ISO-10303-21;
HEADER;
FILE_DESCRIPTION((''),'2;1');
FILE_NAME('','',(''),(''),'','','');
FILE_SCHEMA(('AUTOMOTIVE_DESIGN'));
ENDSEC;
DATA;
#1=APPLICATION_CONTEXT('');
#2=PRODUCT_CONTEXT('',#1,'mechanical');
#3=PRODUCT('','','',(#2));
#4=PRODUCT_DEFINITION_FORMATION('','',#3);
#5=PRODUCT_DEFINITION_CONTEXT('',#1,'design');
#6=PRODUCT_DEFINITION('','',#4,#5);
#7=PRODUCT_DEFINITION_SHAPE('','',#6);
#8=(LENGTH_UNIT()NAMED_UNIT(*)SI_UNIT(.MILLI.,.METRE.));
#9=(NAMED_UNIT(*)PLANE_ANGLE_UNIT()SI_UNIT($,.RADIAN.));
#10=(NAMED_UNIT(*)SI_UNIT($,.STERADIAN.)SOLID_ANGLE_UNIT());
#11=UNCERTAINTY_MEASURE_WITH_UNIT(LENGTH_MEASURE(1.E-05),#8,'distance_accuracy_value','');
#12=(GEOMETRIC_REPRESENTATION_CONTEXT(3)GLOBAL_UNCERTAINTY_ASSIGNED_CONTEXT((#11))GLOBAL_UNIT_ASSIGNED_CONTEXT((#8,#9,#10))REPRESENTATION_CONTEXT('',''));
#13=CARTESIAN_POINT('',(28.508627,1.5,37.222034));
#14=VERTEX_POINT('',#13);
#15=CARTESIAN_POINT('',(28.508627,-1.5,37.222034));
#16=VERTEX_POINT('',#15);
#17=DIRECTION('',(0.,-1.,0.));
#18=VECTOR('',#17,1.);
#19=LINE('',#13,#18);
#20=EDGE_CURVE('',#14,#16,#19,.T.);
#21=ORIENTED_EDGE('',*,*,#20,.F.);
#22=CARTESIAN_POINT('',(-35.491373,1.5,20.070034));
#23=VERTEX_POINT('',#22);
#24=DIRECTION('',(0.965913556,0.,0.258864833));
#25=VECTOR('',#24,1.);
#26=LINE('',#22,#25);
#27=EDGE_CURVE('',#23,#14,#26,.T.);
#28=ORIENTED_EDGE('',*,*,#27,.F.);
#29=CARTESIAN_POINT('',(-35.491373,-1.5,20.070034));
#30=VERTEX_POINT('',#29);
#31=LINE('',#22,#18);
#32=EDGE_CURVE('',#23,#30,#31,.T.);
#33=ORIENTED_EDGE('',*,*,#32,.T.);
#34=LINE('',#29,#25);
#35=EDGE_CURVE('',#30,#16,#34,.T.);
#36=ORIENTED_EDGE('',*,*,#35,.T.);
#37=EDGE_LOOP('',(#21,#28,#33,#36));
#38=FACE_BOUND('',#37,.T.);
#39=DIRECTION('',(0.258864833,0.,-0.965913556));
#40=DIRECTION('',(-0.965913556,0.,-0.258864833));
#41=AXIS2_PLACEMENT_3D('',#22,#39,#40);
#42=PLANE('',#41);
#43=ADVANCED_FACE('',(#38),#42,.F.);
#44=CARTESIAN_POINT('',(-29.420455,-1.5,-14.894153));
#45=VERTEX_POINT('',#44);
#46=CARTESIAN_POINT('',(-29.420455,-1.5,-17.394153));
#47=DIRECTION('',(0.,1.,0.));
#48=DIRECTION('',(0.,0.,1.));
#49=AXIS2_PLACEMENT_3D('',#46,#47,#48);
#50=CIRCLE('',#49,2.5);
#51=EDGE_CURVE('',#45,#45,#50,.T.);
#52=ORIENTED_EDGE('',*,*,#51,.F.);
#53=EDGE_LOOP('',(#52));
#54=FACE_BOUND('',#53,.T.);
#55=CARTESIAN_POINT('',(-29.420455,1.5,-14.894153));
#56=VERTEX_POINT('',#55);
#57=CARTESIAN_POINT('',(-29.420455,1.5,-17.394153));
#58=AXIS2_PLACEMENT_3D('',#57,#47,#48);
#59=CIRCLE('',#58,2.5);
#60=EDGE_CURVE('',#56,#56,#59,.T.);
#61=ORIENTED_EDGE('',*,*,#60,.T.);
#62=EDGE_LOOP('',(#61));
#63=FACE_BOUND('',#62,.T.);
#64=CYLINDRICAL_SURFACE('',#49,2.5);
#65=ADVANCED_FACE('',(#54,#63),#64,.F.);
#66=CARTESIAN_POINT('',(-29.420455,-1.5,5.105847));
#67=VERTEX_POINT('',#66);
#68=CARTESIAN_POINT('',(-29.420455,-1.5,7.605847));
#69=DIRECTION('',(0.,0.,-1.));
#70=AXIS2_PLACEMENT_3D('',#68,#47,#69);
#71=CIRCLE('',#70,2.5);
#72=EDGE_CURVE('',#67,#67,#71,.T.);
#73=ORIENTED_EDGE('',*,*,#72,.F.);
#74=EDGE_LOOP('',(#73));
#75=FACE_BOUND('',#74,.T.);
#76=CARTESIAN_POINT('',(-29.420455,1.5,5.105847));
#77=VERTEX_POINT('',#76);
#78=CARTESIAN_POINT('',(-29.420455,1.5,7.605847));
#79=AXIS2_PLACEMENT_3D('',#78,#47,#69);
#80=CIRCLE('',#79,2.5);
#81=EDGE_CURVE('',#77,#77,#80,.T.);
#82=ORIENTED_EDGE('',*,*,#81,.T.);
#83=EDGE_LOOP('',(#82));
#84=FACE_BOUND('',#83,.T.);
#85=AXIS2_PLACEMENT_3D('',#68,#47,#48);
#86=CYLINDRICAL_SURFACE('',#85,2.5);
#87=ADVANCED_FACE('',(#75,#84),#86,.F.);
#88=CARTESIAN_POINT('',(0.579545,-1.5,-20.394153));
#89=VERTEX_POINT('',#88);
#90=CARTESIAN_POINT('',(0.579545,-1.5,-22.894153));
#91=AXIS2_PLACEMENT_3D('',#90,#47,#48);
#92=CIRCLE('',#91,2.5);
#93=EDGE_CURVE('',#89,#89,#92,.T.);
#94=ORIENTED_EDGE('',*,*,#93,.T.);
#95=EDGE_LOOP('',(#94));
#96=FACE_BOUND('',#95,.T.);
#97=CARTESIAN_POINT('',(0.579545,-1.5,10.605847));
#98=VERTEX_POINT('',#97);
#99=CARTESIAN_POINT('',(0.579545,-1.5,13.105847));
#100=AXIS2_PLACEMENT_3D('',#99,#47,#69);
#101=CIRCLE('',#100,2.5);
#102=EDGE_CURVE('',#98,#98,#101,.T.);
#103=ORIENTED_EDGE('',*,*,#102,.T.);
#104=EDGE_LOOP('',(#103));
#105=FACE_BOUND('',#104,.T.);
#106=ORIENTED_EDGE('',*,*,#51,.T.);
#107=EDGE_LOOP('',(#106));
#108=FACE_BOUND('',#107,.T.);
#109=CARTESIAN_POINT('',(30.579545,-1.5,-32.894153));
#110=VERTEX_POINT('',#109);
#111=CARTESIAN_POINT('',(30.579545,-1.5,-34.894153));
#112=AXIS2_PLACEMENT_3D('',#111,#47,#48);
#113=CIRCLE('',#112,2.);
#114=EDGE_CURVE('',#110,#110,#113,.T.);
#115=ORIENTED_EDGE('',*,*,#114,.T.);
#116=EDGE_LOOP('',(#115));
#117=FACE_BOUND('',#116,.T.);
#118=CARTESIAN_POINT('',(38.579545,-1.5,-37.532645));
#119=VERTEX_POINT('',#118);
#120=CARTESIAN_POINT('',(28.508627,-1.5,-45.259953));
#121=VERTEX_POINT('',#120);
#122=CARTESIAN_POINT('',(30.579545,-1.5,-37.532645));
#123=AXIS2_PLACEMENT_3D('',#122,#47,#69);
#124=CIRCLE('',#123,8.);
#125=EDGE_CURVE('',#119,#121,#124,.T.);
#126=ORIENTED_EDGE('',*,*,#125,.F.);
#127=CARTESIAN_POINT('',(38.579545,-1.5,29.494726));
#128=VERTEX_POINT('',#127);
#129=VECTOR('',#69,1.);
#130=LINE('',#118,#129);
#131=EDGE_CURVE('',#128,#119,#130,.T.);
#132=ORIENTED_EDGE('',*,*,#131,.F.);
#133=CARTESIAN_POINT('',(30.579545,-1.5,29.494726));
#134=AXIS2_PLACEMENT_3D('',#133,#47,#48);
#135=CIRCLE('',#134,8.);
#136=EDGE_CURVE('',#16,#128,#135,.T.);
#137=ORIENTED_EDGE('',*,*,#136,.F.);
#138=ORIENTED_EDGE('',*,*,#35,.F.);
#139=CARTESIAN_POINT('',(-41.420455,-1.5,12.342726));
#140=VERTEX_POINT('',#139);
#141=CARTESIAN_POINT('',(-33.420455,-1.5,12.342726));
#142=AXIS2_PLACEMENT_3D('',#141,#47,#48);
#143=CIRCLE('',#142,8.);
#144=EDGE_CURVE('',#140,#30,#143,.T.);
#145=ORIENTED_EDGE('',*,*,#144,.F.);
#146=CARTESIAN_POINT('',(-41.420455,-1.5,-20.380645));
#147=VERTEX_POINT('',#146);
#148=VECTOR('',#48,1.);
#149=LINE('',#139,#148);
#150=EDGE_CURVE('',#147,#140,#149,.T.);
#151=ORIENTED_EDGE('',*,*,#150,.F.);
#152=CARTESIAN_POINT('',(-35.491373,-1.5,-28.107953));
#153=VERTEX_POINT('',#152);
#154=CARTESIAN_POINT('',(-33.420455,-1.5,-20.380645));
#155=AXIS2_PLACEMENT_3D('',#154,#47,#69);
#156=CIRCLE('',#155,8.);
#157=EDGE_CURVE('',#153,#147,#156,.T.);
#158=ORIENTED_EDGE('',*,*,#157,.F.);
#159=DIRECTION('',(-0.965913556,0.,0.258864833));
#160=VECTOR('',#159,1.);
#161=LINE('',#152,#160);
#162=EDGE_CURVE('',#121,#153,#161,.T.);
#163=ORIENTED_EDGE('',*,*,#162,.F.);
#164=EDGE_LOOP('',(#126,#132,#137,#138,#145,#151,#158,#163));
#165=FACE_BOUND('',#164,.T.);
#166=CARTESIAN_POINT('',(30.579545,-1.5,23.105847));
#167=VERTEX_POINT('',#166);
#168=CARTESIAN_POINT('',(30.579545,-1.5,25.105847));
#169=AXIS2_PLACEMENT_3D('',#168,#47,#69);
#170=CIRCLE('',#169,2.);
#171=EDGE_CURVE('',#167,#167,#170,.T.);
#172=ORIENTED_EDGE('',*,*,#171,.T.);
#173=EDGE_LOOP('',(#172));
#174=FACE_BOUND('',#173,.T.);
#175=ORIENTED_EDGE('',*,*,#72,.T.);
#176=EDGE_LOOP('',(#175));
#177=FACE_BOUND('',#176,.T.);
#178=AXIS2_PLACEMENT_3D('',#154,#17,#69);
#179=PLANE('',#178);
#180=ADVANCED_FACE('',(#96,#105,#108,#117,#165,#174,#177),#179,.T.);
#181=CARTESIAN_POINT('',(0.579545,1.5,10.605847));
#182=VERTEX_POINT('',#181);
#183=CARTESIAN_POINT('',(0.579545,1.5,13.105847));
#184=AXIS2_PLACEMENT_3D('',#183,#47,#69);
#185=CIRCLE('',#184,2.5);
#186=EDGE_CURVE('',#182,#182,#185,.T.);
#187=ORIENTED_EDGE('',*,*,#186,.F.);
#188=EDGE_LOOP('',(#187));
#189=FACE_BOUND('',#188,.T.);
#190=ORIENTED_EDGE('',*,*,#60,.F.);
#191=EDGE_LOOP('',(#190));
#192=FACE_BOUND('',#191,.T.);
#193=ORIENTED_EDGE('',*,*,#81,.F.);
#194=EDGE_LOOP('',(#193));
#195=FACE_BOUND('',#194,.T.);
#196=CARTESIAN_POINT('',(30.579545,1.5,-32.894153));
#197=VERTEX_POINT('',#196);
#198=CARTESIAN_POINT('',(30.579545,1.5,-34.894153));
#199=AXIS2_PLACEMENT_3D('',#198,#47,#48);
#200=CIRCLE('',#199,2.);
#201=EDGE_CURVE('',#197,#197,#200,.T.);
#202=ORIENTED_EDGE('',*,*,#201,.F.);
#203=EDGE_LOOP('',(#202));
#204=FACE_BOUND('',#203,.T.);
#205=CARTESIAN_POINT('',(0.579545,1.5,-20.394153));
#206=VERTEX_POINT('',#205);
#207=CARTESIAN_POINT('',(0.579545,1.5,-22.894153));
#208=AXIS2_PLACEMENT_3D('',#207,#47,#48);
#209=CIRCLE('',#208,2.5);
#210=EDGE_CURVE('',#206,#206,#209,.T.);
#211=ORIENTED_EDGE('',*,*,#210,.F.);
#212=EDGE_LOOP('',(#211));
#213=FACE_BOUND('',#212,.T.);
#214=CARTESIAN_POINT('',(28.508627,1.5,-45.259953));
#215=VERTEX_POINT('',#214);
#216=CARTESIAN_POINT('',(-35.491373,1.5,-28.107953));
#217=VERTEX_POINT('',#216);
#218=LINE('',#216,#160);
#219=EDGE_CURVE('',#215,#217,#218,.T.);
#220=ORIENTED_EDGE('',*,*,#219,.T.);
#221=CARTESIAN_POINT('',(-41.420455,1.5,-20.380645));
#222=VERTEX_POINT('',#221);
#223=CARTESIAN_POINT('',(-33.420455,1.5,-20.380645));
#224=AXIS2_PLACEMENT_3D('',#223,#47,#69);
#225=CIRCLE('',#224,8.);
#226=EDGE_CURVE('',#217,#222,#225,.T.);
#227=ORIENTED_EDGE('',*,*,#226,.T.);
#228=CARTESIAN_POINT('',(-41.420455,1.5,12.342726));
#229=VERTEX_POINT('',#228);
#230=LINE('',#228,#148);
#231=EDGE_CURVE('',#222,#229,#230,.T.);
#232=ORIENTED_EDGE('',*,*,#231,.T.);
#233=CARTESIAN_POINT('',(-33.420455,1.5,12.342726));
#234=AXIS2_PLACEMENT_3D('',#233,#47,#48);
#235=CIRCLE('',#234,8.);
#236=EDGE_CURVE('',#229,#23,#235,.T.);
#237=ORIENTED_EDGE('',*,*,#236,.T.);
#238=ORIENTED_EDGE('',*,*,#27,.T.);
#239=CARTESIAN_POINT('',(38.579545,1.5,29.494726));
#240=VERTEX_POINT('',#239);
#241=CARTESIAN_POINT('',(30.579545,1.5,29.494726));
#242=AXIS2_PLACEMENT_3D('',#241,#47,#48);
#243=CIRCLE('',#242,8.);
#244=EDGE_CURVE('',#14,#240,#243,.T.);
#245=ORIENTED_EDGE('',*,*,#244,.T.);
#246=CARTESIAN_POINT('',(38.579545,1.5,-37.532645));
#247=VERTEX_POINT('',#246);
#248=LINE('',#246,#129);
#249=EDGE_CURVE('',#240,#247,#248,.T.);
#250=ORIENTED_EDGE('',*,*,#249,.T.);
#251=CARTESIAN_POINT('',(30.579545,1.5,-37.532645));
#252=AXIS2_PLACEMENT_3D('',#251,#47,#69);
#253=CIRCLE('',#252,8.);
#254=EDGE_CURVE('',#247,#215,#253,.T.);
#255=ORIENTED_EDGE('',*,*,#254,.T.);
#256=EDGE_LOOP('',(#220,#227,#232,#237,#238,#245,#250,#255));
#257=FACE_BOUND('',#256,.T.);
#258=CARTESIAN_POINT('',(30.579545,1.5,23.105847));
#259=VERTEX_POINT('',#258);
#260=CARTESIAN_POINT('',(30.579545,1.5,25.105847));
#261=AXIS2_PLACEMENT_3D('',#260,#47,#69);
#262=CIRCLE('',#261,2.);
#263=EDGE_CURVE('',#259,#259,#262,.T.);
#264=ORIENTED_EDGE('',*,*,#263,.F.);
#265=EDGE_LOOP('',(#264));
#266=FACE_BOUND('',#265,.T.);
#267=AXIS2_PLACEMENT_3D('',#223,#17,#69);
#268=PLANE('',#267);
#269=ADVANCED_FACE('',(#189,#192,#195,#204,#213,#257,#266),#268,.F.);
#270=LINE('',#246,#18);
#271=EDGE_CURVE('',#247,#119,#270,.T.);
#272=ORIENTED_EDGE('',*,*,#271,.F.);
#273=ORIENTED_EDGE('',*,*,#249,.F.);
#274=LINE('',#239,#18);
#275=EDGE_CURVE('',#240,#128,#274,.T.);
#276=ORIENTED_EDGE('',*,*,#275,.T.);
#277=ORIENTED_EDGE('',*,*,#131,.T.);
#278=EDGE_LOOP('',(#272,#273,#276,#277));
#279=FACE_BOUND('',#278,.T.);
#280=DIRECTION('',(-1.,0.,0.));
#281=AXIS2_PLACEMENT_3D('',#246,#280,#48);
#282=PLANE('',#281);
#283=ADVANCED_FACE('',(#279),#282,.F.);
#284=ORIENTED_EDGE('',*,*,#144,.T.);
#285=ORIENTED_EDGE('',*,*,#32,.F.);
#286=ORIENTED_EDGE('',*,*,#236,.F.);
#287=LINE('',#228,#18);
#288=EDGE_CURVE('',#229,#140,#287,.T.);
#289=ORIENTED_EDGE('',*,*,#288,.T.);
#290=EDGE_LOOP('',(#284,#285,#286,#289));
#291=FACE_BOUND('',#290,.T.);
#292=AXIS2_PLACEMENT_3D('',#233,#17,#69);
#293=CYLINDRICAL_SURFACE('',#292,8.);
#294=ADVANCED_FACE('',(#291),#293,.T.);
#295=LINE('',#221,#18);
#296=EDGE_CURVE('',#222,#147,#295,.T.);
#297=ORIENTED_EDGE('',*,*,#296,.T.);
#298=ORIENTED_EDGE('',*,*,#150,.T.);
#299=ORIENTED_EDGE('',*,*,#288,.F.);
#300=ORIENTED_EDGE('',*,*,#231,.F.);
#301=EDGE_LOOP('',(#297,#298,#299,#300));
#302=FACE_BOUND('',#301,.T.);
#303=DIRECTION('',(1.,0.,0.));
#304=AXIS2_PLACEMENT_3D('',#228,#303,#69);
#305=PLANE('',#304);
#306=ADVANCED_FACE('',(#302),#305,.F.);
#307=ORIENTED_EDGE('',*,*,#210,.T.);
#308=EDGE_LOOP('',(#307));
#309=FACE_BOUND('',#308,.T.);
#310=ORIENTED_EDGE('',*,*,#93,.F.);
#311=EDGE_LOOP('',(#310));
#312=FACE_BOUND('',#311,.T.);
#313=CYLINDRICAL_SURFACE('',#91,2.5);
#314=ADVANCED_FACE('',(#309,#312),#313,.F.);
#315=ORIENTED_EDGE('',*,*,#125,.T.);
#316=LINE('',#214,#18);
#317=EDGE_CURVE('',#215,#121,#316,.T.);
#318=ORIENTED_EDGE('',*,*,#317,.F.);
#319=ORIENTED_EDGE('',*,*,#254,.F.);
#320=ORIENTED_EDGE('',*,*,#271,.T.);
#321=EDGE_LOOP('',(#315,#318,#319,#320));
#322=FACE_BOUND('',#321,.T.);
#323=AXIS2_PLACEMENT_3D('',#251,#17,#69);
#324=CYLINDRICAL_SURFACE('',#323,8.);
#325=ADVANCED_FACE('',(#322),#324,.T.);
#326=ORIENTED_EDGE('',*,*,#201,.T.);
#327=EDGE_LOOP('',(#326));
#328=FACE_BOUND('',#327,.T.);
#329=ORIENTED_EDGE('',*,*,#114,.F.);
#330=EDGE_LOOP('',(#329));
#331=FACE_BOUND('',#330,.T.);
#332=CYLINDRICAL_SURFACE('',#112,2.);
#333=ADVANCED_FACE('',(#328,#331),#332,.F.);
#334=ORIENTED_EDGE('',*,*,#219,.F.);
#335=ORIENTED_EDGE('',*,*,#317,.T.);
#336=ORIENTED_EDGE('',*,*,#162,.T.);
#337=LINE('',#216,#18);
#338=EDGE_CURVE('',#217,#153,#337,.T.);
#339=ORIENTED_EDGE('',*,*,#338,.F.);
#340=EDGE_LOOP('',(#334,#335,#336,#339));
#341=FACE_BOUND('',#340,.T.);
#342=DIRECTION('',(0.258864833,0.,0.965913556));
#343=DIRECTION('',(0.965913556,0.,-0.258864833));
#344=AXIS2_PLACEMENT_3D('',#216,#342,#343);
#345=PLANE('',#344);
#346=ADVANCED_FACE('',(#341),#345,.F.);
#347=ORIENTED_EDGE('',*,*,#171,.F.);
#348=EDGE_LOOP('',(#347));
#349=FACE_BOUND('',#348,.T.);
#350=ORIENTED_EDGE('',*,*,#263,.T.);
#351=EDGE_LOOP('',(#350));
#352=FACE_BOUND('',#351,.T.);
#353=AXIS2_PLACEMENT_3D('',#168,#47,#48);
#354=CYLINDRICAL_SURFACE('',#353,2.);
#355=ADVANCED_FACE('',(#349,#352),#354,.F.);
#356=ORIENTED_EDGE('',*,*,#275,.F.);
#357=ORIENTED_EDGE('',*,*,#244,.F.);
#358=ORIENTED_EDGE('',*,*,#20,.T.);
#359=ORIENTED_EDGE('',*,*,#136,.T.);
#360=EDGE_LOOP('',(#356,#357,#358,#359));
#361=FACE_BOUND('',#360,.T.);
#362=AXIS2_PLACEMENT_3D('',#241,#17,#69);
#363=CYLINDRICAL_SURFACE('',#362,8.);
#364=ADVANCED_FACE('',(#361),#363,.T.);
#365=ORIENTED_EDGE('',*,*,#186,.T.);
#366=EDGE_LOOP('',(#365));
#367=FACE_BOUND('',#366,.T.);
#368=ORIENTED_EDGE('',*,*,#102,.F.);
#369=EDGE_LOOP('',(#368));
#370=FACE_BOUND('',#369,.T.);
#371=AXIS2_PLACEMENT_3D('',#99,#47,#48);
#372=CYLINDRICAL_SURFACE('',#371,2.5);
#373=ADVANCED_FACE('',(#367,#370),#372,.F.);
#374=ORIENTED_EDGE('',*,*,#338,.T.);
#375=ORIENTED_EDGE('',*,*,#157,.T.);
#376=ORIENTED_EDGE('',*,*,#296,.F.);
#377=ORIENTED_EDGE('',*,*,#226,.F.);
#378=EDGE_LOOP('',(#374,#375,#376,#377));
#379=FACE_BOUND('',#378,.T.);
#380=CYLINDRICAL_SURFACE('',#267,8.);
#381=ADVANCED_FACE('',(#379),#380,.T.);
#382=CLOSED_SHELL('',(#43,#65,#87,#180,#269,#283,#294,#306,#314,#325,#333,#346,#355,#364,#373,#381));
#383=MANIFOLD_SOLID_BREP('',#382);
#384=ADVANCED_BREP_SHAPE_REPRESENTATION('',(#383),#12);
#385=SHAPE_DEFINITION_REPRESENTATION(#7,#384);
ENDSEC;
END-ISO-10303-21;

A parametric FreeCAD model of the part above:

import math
import FreeCAD as App
import Part
import Sketcher
from FreeCAD import Vector
Q = App.Units.Quantity

doc = App.newDocument("Part")
params = doc.addObject("Spreadsheet::Sheet", "Params")
for row, (alias, value) in enumerate([
    ("sketch1_radius", "8 mm"),
    ("pad1_length", "3 mm"),
    ("sketch2_diameter", "4 mm"),
    ("sketch2_diameter2", "5 mm"),
    ("pocket1_length", "3 mm"),
], start=1):
    params.set(f"A{row}", alias)
    params.set(f"B{row}", "=" + value)
    params.setAlias(f"B{row}", alias)

body = doc.addObject("PartDesign::Body", "Body")

# Sketch on XZ plane
sketch1 = body.newObject("Sketcher::SketchObject", "Sketch")
sketch1.AttachmentSupport = (doc.getObject("XZ_Plane"), [""])
sketch1.MapMode = "FlatFace"
sketch1.addGeometry([
    Part.LineSegment(Vector(-41, -20, 0), Vector(-41, 12, 0)),  # 0
    Part.ArcOfCircle(Part.Circle(Vector(-33, 12, 0), Vector(0, 0, 1), 8), math.radians(105), math.radians(180)),  # 1
    Part.LineSegment(Vector(-35, 20, 0), Vector(29, 37, 0)),  # 2
    Part.ArcOfCircle(Part.Circle(Vector(31, 29, 0), Vector(0, 0, 1), 8), math.radians(0), math.radians(105)),  # 3
    Part.LineSegment(Vector(39, 29, 0), Vector(39, -38, 0)),  # 4
    Part.ArcOfCircle(Part.Circle(Vector(31, -38, 0), Vector(0, 0, 1), 8), math.radians(-105), math.radians(0)),  # 5
    Part.LineSegment(Vector(29, -45, 0), Vector(-35, -28, 0)),  # 6
    Part.ArcOfCircle(Part.Circle(Vector(-33, -20, 0), Vector(0, 0, 1), 8), math.radians(180), math.radians(255)),  # 7
], False)
sketch1.addConstraint([
    Sketcher.Constraint("Tangent", 0, 2, 1, 2),
    Sketcher.Constraint("Tangent", 1, 1, 2, 1),
    Sketcher.Constraint("Tangent", 2, 2, 3, 2),
    Sketcher.Constraint("Tangent", 3, 1, 4, 1),
    Sketcher.Constraint("Tangent", 4, 2, 5, 2),
    Sketcher.Constraint("Tangent", 5, 1, 6, 1),
    Sketcher.Constraint("Tangent", 6, 2, 7, 2),
    Sketcher.Constraint("Tangent", 7, 1, 0, 1),
    Sketcher.Constraint("Vertical", 0),
    Sketcher.Constraint("Vertical", 4),
    Sketcher.Constraint("Equal", 1, 3),
    Sketcher.Constraint("Equal", 3, 5),
    Sketcher.Constraint("Equal", 5, 7),
    Sketcher.Constraint("Vertical", 2, 2, 5, 1),
    Sketcher.Constraint("Radius", 1, Q("8 mm")),
    Sketcher.Constraint("DistanceX", 1, 3, 3, 3, Q("64 mm")),
    Sketcher.Constraint("DistanceY", 1, 3, 3, 3, Q("17.152 mm")),
    Sketcher.Constraint("DistanceY", 0, 1, 0, 2, Q("32.723371 mm")),
    Sketcher.Constraint("DistanceX", 1, 3, -1, 1, Q("33.420455 mm")),
    Sketcher.Constraint("DistanceY", -1, 1, 1, 3, Q("12.342726 mm")),
])
sketch1.setExpression("Constraints[14]", "Params.sketch1_radius")
pad1 = body.newObject("PartDesign::Pad", "Pad")
pad1.Profile = sketch1
pad1.setExpression("Length", "Params.pad1_length")
pad1.Midplane = True

# Sketch on XZ plane
sketch2 = body.newObject("Sketcher::SketchObject", "Sketch001")
sketch2.AttachmentSupport = (doc.getObject("XZ_Plane"), [""])
sketch2.MapMode = "FlatFace"
sketch2.AttachmentOffset = App.Placement(Vector(0, 0, -1.5), App.Rotation())
sketch2.addGeometry([
    Part.Circle(Vector(30.6, -34.9, 0), Vector(0, 0, 1), 2),  # 0
    Part.Circle(Vector(0.6, -22.9, 0), Vector(0, 0, 1), 2.5),  # 1
    Part.Circle(Vector(-29.4, -17.4, 0), Vector(0, 0, 1), 2.5),  # 2
    Part.Circle(Vector(30.6, 25.1, 0), Vector(0, 0, 1), 2),  # 3
    Part.Circle(Vector(0.6, 13.1, 0), Vector(0, 0, 1), 2.5),  # 4
    Part.Circle(Vector(-29.4, 7.6, 0), Vector(0, 0, 1), 2.5),  # 5
], False)
sketch2.addConstraint([
    Sketcher.Constraint("Equal", 1, 2),
    Sketcher.Constraint("Equal", 0, 3),
    Sketcher.Constraint("Equal", 2, 4),
    Sketcher.Constraint("Equal", 4, 5),
    Sketcher.Constraint("Vertical", 0, 3, 3, 3),
    Sketcher.Constraint("Vertical", 1, 3, 4, 3),
    Sketcher.Constraint("Vertical", 2, 3, 5, 3),
    Sketcher.Constraint("Diameter", 0, Q("4 mm")),
    Sketcher.Constraint("Diameter", 1, Q("5 mm")),
    Sketcher.Constraint("DistanceX", 1, 3, 0, 3, Q("30 mm")),
    Sketcher.Constraint("DistanceY", 0, 3, 1, 3, Q("12 mm")),
    Sketcher.Constraint("DistanceX", 2, 3, 1, 3, Q("30 mm")),
    Sketcher.Constraint("DistanceY", 1, 3, 3, 3, Q("48 mm")),
    Sketcher.Constraint("DistanceY", 4, 3, 3, 3, Q("12 mm")),
    Sketcher.Constraint("DistanceY", 2, 3, 5, 3, Q("25 mm")),
    Sketcher.Constraint("DistanceY", 1, 3, 2, 3, Q("5.5 mm")),
    Sketcher.Constraint("DistanceX", -1, 1, 0, 3, Q("30.579545 mm")),
    Sketcher.Constraint("DistanceY", 0, 3, -1, 1, Q("34.894153 mm")),
])
sketch2.setExpression("Constraints[7]", "Params.sketch2_diameter")
sketch2.setExpression("Constraints[8]", "Params.sketch2_diameter2")
pocket1 = body.newObject("PartDesign::Pocket", "Pocket")
pocket1.Profile = sketch2
pocket1.setExpression("Length", "Params.pocket1_length")
pocket1.Reversed = True

doc.recompute()
